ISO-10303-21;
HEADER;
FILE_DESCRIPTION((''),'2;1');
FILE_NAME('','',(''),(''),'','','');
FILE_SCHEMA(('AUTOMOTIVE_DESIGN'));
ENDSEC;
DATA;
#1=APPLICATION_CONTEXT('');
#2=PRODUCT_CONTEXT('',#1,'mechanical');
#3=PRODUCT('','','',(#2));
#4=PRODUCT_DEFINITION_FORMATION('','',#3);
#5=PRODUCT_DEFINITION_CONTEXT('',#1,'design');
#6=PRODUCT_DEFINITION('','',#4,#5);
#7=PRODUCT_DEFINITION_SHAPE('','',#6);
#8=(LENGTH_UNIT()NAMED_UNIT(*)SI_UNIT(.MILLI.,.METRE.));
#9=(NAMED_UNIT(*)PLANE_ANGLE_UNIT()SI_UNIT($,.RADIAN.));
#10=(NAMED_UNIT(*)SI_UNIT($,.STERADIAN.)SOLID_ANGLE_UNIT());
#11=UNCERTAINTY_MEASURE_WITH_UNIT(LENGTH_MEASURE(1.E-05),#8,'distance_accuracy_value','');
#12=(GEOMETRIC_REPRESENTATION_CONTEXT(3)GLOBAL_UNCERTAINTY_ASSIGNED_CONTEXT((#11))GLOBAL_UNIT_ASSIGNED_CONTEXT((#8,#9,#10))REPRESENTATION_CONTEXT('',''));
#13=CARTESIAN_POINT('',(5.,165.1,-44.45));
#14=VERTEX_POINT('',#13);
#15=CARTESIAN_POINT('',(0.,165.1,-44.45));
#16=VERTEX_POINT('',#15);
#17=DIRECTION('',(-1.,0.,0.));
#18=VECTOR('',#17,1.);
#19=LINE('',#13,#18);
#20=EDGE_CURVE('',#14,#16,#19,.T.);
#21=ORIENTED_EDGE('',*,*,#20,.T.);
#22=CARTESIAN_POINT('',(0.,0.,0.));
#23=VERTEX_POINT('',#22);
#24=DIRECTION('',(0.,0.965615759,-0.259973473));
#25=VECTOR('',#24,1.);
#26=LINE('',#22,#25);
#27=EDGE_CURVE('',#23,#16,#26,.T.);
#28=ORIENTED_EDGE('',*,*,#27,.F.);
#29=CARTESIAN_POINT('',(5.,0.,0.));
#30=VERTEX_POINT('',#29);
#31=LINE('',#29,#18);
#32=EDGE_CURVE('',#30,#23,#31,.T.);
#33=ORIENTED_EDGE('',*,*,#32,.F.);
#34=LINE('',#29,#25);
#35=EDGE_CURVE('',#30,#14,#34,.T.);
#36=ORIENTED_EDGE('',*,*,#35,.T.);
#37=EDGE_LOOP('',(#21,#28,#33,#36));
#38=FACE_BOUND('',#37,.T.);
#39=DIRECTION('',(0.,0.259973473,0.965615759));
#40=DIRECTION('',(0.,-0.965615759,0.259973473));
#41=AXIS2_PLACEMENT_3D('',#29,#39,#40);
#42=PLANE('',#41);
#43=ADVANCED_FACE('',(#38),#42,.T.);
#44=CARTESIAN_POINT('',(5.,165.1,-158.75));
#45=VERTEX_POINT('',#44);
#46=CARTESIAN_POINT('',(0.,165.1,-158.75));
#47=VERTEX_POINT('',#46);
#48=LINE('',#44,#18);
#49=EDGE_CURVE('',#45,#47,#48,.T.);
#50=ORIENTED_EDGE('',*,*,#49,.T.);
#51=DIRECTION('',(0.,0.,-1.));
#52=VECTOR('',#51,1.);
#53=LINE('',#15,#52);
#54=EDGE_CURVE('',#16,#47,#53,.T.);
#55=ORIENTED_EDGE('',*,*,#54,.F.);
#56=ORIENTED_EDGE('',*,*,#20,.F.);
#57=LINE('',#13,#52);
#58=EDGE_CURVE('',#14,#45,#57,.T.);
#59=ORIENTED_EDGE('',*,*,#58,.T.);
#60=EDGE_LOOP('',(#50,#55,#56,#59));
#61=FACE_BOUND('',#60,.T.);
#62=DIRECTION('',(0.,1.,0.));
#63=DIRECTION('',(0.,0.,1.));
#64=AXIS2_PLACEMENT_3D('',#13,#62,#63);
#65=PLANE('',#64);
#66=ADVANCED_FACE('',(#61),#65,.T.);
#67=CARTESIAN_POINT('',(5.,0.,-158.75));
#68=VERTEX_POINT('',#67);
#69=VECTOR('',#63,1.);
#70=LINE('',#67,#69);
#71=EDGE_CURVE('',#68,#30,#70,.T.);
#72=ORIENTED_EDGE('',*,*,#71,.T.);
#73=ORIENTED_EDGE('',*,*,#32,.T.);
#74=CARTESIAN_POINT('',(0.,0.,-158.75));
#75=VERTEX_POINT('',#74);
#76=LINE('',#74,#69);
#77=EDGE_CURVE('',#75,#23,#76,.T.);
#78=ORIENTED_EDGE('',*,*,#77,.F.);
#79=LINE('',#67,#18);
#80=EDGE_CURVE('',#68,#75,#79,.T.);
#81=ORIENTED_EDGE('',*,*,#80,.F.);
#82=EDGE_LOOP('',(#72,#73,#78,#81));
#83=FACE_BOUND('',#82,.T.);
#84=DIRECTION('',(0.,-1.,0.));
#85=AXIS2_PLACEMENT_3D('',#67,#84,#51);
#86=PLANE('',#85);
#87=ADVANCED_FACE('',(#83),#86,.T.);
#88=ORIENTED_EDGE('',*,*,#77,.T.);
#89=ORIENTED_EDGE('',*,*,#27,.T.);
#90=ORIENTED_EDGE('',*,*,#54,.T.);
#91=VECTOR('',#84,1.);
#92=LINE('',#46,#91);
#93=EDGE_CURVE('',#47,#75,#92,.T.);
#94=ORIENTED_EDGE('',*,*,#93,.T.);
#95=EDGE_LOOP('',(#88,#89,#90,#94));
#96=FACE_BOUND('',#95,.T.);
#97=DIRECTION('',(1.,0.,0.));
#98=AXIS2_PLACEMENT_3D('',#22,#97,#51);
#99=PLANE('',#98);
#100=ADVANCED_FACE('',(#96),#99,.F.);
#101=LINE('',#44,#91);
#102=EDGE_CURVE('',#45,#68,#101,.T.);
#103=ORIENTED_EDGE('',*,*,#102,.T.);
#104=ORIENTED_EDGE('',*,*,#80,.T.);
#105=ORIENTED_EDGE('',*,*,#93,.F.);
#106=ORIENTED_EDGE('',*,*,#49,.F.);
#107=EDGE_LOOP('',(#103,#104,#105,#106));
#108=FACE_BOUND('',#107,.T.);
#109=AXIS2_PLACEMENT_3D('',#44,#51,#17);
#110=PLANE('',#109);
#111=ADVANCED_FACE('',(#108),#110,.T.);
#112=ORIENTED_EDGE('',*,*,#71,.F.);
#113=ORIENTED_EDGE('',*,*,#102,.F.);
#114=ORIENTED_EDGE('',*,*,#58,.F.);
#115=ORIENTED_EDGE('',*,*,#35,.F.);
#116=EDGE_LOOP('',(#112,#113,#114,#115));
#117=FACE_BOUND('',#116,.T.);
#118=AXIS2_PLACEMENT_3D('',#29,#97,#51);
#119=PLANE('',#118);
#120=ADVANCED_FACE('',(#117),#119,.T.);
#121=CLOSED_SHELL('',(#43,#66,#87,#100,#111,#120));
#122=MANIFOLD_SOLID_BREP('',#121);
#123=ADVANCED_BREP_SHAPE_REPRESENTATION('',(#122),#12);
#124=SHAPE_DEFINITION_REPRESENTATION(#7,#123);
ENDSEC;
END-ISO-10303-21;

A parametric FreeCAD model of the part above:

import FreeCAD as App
import Part
import Sketcher

V = App.Vector
Q = App.Units.Quantity

doc = App.newDocument("Part")
body = doc.addObject("PartDesign::Body", "Body")

# Sketch on YZ plane
sketch1 = body.newObject("Sketcher::SketchObject", "Sketch")
sketch1.AttachmentSupport = (doc.getObject("YZ_Plane"), [""])
sketch1.MapMode = "FlatFace"
sketch1.addGeometry([
    Part.LineSegment(V(165, -44, 0), V(0, 0, 0)),
    Part.LineSegment(V(0, 0, 0), V(0, -159, 0)),
    Part.LineSegment(V(0, -159, 0), V(165, -159, 0)),
    Part.LineSegment(V(165, -159, 0), V(165, -44, 0)),
], False)
sketch1.addConstraint([
    Sketcher.Constraint("Coincident", 0, 2, 1, 1),
    Sketcher.Constraint("Coincident", 1, 2, 2, 1),
    Sketcher.Constraint("Coincident", 2, 2, 3, 1),
    Sketcher.Constraint("Coincident", 3, 2, 0, 1),
    Sketcher.Constraint("Vertical", 1),
    Sketcher.Constraint("Horizontal", 2),
    Sketcher.Constraint("Vertical", 3),
    Sketcher.Constraint("Coincident", 0, 2, -1, 1),
    Sketcher.Constraint("DistanceX", 2, 1, 2, 2, Q("6.5 in")),
    Sketcher.Constraint("DistanceY", 3, 1, 3, 2, Q("4.5 in")),
    Sketcher.Constraint("DistanceY", 1, 2, 1, 1, Q("6.25 in")),
])
pad1 = body.newObject("PartDesign::Pad", "Pad")
pad1.Profile = sketch1
pad1.Length = 5

doc.recompute()
